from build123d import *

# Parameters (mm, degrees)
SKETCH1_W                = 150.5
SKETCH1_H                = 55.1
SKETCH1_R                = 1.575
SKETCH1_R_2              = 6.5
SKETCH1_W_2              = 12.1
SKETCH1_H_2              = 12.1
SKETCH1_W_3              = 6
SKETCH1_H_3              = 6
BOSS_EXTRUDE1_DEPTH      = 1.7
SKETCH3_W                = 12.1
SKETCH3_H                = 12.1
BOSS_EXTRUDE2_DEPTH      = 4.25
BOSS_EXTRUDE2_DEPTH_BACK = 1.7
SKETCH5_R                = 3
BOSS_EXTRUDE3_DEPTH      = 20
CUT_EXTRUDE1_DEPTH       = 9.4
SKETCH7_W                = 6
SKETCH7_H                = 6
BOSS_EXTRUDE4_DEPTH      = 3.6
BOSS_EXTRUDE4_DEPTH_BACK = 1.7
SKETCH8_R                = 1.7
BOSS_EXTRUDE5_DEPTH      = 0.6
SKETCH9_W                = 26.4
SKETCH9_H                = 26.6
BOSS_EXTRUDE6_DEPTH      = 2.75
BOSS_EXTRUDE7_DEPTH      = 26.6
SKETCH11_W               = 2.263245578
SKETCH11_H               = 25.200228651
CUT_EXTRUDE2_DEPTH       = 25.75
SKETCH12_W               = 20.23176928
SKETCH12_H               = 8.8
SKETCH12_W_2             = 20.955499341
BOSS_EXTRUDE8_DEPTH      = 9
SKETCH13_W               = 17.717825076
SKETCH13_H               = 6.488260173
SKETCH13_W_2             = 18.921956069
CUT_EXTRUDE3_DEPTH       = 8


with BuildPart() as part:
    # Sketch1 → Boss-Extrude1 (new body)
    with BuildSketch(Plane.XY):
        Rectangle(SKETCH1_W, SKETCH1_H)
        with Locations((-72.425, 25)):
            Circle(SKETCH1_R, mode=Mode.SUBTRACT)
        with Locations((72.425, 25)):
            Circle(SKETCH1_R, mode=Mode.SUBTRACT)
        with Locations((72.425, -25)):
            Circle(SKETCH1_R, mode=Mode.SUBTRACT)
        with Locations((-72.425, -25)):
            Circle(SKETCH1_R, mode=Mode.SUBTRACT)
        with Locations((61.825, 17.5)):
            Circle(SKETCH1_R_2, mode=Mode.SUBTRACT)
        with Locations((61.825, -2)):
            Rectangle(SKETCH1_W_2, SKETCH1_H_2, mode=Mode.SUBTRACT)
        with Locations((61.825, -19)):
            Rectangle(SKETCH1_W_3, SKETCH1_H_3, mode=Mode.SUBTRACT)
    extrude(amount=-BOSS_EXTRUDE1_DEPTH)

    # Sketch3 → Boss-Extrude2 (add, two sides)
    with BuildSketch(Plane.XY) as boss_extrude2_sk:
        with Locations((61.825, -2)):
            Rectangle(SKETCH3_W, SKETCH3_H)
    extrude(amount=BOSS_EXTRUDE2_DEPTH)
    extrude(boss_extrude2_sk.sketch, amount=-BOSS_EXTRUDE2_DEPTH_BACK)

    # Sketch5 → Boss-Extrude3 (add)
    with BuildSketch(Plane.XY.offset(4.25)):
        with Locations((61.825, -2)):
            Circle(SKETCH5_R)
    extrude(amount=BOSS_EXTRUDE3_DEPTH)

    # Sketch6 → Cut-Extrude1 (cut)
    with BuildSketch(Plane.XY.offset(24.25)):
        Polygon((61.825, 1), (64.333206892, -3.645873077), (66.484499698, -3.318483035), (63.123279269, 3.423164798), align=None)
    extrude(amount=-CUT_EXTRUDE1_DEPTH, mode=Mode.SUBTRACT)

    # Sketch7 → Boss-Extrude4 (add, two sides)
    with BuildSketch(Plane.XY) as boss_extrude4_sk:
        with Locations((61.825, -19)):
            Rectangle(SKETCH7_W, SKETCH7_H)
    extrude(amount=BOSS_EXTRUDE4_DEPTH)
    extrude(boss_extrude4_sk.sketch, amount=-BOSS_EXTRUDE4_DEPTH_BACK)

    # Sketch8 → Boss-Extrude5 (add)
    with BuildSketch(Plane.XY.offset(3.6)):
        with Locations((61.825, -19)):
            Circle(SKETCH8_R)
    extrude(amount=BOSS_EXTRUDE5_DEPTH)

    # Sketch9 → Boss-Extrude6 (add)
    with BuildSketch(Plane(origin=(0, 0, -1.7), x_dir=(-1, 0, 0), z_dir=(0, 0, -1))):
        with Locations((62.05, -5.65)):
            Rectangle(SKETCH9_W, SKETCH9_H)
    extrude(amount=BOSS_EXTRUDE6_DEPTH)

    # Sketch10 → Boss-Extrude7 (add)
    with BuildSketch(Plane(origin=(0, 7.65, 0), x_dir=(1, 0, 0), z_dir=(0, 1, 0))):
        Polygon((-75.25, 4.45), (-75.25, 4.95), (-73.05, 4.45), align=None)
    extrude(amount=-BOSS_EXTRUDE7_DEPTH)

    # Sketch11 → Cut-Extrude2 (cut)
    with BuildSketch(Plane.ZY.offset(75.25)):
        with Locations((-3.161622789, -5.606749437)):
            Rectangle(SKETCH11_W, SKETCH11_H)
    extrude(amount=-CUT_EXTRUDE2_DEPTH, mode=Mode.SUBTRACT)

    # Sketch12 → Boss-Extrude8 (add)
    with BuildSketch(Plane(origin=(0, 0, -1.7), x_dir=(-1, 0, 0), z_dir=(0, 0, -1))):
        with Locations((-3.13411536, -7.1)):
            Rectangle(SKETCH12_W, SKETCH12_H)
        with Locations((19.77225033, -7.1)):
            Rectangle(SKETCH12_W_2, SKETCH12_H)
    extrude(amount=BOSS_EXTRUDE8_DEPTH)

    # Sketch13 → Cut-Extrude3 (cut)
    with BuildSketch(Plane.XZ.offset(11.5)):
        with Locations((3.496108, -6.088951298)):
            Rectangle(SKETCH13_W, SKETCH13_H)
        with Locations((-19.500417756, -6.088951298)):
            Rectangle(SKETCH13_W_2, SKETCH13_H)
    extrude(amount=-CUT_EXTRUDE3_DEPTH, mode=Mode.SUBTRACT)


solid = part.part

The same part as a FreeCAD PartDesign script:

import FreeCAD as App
import Part
import Sketcher
from FreeCAD import Vector
Q = App.Units.Quantity


def add_polygon(sketch, points):
    """Adds a closed chain of lines whose ends are joined by coincident constraints."""
    first, n = sketch.GeometryCount, len(points)
    for a, b in zip(points, points[1:] + points[:1]):
        sketch.addGeometry(Part.LineSegment(App.Vector(*a, 0), App.Vector(*b, 0)), False)
    for i in range(n):
        sketch.addConstraint(Sketcher.Constraint("Coincident", first + i, 2, first + (i + 1) % n, 1))

doc = App.newDocument("Part")
body = doc.addObject("PartDesign::Body", "Body")

# Sketch on XY plane
sketch1 = body.newObject("Sketcher::SketchObject", "Sketch")
sketch1.AttachmentSupport = (doc.getObject("XY_Plane"), [""])
sketch1.MapMode = "FlatFace"
add_polygon(sketch1, [(-75.2, 27.6), (-75.2, -27.6), (75.2, -27.6), (75.2, 27.6)])  # lines 0-3
sketch1.addGeometry(Part.Circle(Vector(-72.4, -25, 0), Vector(0, 0, 1), 1.6), False)  # 4
sketch1.addGeometry(Part.Circle(Vector(72.4, -25, 0), Vector(0, 0, 1), 1.6), False)  # 5
add_polygon(sketch1, [(64.8, -22), (58.8, -22), (58.8, -16), (64.8, -16)])  # lines 6-9
add_polygon(sketch1, [(67.9, -8.1), (55.8, -8.1), (55.8, 4), (67.9, 4)])  # lines 10-13
sketch1.addGeometry(Part.Circle(Vector(-72.4, 25, 0), Vector(0, 0, 1), 1.6), False)  # 14
sketch1.addGeometry(Part.Circle(Vector(61.8, 17.5, 0), Vector(0, 0, 1), 6.5), False)  # 15
sketch1.addGeometry(Part.Circle(Vector(72.4, 25, 0), Vector(0, 0, 1), 1.6), False)  # 16
sketch1.addConstraint([
    Sketcher.Constraint("Vertical", 0),
    Sketcher.Constraint("Horizontal", 1),
    Sketcher.Constraint("Vertical", 2),
    Sketcher.Constraint("Horizontal", 3),
    Sketcher.Constraint("Horizontal", 6),
    Sketcher.Constraint("Vertical", 7),
    Sketcher.Constraint("Horizontal", 8),
    Sketcher.Constraint("Vertical", 9),
    Sketcher.Constraint("Horizontal", 10),
    Sketcher.Constraint("Vertical", 11),
    Sketcher.Constraint("Horizontal", 12),
    Sketcher.Constraint("Vertical", 13),
    Sketcher.Constraint("Equal", 4, 5),
    Sketcher.Constraint("Equal", 5, 14),
    Sketcher.Constraint("Equal", 14, 16),
    Sketcher.Constraint("Symmetric", 5, 3, 14, 3, -1, 1),
    Sketcher.Constraint("Symmetric", 4, 3, 16, 3, -1, 1),
    Sketcher.Constraint("Symmetric", 0, 2, 2, 2, -1, 1),
    Sketcher.Constraint("Symmetric", 4, 3, 5, 3, -2),
    Sketcher.Constraint("Equal", 8, 7),
    Sketcher.Constraint("Equal", 12, 11),
    Sketcher.Constraint("Diameter", 15, Q("13 mm")),
    Sketcher.Constraint("Diameter", 4, Q("3.15 mm")),
    Sketcher.Constraint("DistanceX", 6, 2, 6, 1, Q("6 mm")),
    Sketcher.Constraint("DistanceX", 1, 1, 1, 2, Q("150.5 mm")),
    Sketcher.Constraint("DistanceX", 10, 2, 10, 1, Q("12.1 mm")),
    Sketcher.Constraint("DistanceY", 0, 2, 0, 1, Q("55.1 mm")),
    Sketcher.Constraint("DistanceY", 4, 3, -1, 1, Q("25 mm")),
    Sketcher.Constraint("DistanceY", 6, 2, -1, 1, Q("22 mm")),
    Sketcher.Constraint("DistanceX", 6, 2, 15, 3, Q("3 mm")),
    Sketcher.Constraint("DistanceY", -1, 1, 15, 3, Q("17.5 mm")),
    Sketcher.Constraint("DistanceX", 15, 3, 5, 3, Q("10.6 mm")),
    Sketcher.Constraint("DistanceY", 10, 2, -1, 1, Q("8.05 mm")),
    Sketcher.Constraint("DistanceX", 4, 3, 5, 3, Q("144.85 mm")),
    Sketcher.Constraint("DistanceX", 10, 2, 7, 2, Q("3.05 mm")),
])
pad1 = body.newObject("PartDesign::Pad", "Pad")
pad1.Profile = sketch1
pad1.Length = 1.7
pad1.Reversed = True

# Sketch on XY plane
sketch2 = body.newObject("Sketcher::SketchObject", "Sketch001")
sketch2.AttachmentSupport = (doc.getObject("XY_Plane"), [""])
sketch2.MapMode = "FlatFace"
add_polygon(sketch2, [(56, 4), (56, -8), (68, -8), (68, 4)])  # lines 0-3
sketch2.addConstraint([
    Sketcher.Constraint("Vertical", 0),
    Sketcher.Constraint("Horizontal", 1),
    Sketcher.Constraint("Vertical", 2),
    Sketcher.Constraint("Horizontal", 3),
    Sketcher.Constraint("Equal", 3, 0),
    Sketcher.Constraint("DistanceX", 1, 1, 1, 2, Q("12.1 mm")),
    Sketcher.Constraint("DistanceY", 0, 2, -1, 1, Q("8.05 mm")),
    Sketcher.Constraint("DistanceX", -1, 1, 0, 2, Q("55.775 mm")),
])
pad2 = body.newObject("PartDesign::Pad", "Pad001")
pad2.Profile = sketch2
pad2.Type = "TwoLengths"
pad2.Length = 4.25
pad2.Length2 = 1.7

# Sketch on XY plane
sketch3 = body.newObject("Sketcher::SketchObject", "Sketch002")
sketch3.AttachmentSupport = (doc.getObject("XY_Plane"), [""])
sketch3.MapMode = "FlatFace"
sketch3.AttachmentOffset = App.Placement(Vector(0, 0, 4.25), App.Rotation())
sketch3.addGeometry(Part.Circle(Vector(61.8, -2, 0), Vector(0, 0, 1), 3), False)
sketch3.addConstraint([
    Sketcher.Constraint("Diameter", 0, Q("6 mm")),
    Sketcher.Constraint("DistanceY", 0, 3, -1, 1, Q("2 mm")),
    Sketcher.Constraint("DistanceX", -1, 1, 0, 3, Q("61.825 mm")),
])
pad3 = body.newObject("PartDesign::Pad", "Pad002")
pad3.Profile = sketch3
pad3.Length = 20

# Sketch on XY plane
sketch4 = body.newObject("Sketcher::SketchObject", "Sketch003")
sketch4.AttachmentSupport = (doc.getObject("XY_Plane"), [""])
sketch4.MapMode = "FlatFace"
sketch4.AttachmentOffset = App.Placement(Vector(0, 0, 24.25), App.Rotation())
add_polygon(sketch4, [(61.8, 1), (64.3, -3.6), (66.5, -3.3), (63.1, 3.4)])  # lines 0-3
sketch4.addConstraint([
    Sketcher.Constraint("DistanceY", -1, 1, 3, 2, Q("1 mm")),
    Sketcher.Constraint("DistanceX", -1, 1, 3, 2, Q("61.825 mm")),
    Sketcher.Constraint("Distance", 0, Q("5.279701 mm")),
    Sketcher.Constraint("Distance", 2, Q("7.533102 mm")),
    Sketcher.Constraint("DistanceX", -1, 1, 1, 2, Q("66.4845 mm")),
    Sketcher.Constraint("Distance", 1, Q("2.176062 mm")),
    Sketcher.Constraint("DistanceX", -1, 1, 2, 2, Q("63.123279 mm")),
    Sketcher.Constraint("DistanceY", 0, 2, 1, 2, Q("0.32739 mm")),
])
pocket1 = body.newObject("PartDesign::Pocket", "Pocket")
pocket1.Profile = sketch4
pocket1.Length = 9.4

# Sketch on XY plane
sketch5 = body.newObject("Sketcher::SketchObject", "Sketch004")
sketch5.AttachmentSupport = (doc.getObject("XY_Plane"), [""])
sketch5.MapMode = "FlatFace"
add_polygon(sketch5, [(59, -16), (59, -22), (65, -22), (65, -16)])  # lines 0-3
sketch5.addConstraint([
    Sketcher.Constraint("Vertical", 0),
    Sketcher.Constraint("Horizontal", 1),
    Sketcher.Constraint("Vertical", 2),
    Sketcher.Constraint("Horizontal", 3),
    Sketcher.Constraint("Equal", 3, 0),
    Sketcher.Constraint("DistanceX", 1, 1, 1, 2, Q("6 mm")),
    Sketcher.Constraint("DistanceY", 0, 2, -1, 1, Q("22 mm")),
    Sketcher.Constraint("DistanceX", -1, 1, 0, 2, Q("58.825 mm")),
])
pad4 = body.newObject("PartDesign::Pad", "Pad003")
pad4.Profile = sketch5
pad4.Type = "TwoLengths"
pad4.Length = 3.6
pad4.Length2 = 1.7

# Sketch on XY plane
sketch6 = body.newObject("Sketcher::SketchObject", "Sketch005")
sketch6.AttachmentSupport = (doc.getObject("XY_Plane"), [""])
sketch6.MapMode = "FlatFace"
sketch6.AttachmentOffset = App.Placement(Vector(0, 0, 3.6), App.Rotation())
sketch6.addGeometry(Part.Circle(Vector(61.8, -19, 0), Vector(0, 0, 1), 1.7), False)
sketch6.addConstraint([
    Sketcher.Constraint("Diameter", 0, Q("3.4 mm")),
    Sketcher.Constraint("DistanceY", 0, 3, -1, 1, Q("19 mm")),
    Sketcher.Constraint("DistanceX", -1, 1, 0, 3, Q("61.825 mm")),
])
pad5 = body.newObject("PartDesign::Pad", "Pad004")
pad5.Profile = sketch6
pad5.Length = 0.6

# Sketch on XY plane
sketch7 = body.newObject("Sketcher::SketchObject", "Sketch006")
sketch7.AttachmentSupport = (doc.getObject("XY_Plane"), [""])
sketch7.MapMode = "FlatFace"
sketch7.AttachmentOffset = App.Placement(Vector(0, 0, -1.7), App.Rotation())
add_polygon(sketch7, [(-49, 8), (-49, -19), (-75, -19), (-75, 8)])  # lines 0-3
sketch7.addConstraint([
    Sketcher.Constraint("Vertical", 0),
    Sketcher.Constraint("Horizontal", 1),
    Sketcher.Constraint("Vertical", 2),
    Sketcher.Constraint("Horizontal", 3),
    Sketcher.Constraint("DistanceX", 1, 2, 1, 1, Q("26.4 mm")),
    Sketcher.Constraint("DistanceY", 0, 2, 0, 1, Q("26.6 mm")),
    Sketcher.Constraint("DistanceX", 0, 2, -1, 1, Q("48.85 mm")),
    Sketcher.Constraint("DistanceY", 0, 2, -1, 1, Q("18.95 mm")),
])
pad6 = body.newObject("PartDesign::Pad", "Pad005")
pad6.Profile = sketch7
pad6.Length = 2.75
pad6.Reversed = True

# Sketch on XZ plane
sketch8 = body.newObject("Sketcher::SketchObject", "Sketch007")
sketch8.AttachmentSupport = (doc.getObject("XZ_Plane"), [""])
sketch8.MapMode = "FlatFace"
sketch8.AttachmentOffset = App.Placement(Vector(0, 0, -7.65), App.Rotation())
add_polygon(sketch8, [(-75.2, -5), (-75.2, -4.5), (-73, -4.5)])  # lines 0-2
sketch8.addConstraint([
    Sketcher.Constraint("Vertical", 0),
    Sketcher.Constraint("Horizontal", 1),
    Sketcher.Constraint("DistanceX", 1, 1, 1, 2, Q("2.2 mm")),
    Sketcher.Constraint("DistanceY", 0, 1, 0, 2, Q("0.5 mm")),
    Sketcher.Constraint("DistanceX", 0, 2, -1, 1, Q("75.25 mm")),
    Sketcher.Constraint("DistanceY", 0, 2, -1, 1, Q("4.45 mm")),
])
pad7 = body.newObject("PartDesign::Pad", "Pad006")
pad7.Profile = sketch8
pad7.Length = 26.6

# Sketch on YZ plane
sketch9 = body.newObject("Sketcher::SketchObject", "Sketch008")
sketch9.AttachmentSupport = (doc.getObject("YZ_Plane"), [""])
sketch9.MapMode = "FlatFace"
sketch9.AttachmentOffset = App.Placement(Vector(0, 0, -75.25), App.Rotation())
add_polygon(sketch9, [(7, -4.3), (-18.2, -4.3), (-18.2, -2), (7, -2)])  # lines 0-3
sketch9.addConstraint([
    Sketcher.Constraint("Horizontal", 0),
    Sketcher.Constraint("Vertical", 1),
    Sketcher.Constraint("Horizontal", 2),
    Sketcher.Constraint("Vertical", 3),
    Sketcher.Constraint("DistanceY", 1, 2, -1, 1, Q("2.03 mm")),
    Sketcher.Constraint("DistanceX", 0, 2, 0, 1, Q("25.200229 mm")),
    Sketcher.Constraint("DistanceY", 1, 1, 1, 2, Q("2.263246 mm")),
    Sketcher.Constraint("DistanceX", 0, 2, -1, 1, Q("18.206864 mm")),
])
pocket2 = body.newObject("PartDesign::Pocket", "Pocket001")
pocket2.Profile = sketch9
pocket2.Length = 25.75
pocket2.Reversed = True

# Sketch on XY plane
sketch10 = body.newObject("Sketcher::SketchObject", "Sketch009")
sketch10.AttachmentSupport = (doc.getObject("XY_Plane"), [""])
sketch10.MapMode = "FlatFace"
sketch10.AttachmentOffset = App.Placement(Vector(0, 0, -1.7), App.Rotation())
add_polygon(sketch10, [(13, -3), (13, -12), (-7, -12), (-7, -3)])  # lines 0-3
add_polygon(sketch10, [(-9, -3), (-9, -12), (-30, -12), (-30, -3)])  # lines 4-7
sketch10.addConstraint([
    Sketcher.Constraint("Vertical", 0),
    Sketcher.Constraint("Horizontal", 1),
    Sketcher.Constraint("Vertical", 2),
    Sketcher.Constraint("Horizontal", 3),
    Sketcher.Constraint("Vertical", 4),
    Sketcher.Constraint("Horizontal", 5),
    Sketcher.Constraint("Vertical", 6),
    Sketcher.Constraint("Horizontal", 7),
    Sketcher.Constraint("Horizontal", 1, 2, 4, 2),
    Sketcher.Constraint("Horizontal", 3, 2, 6, 2),
    Sketcher.Constraint("DistanceY", 0, 2, 0, 1, Q("8.8 mm")),
    Sketcher.Constraint("DistanceY", 0, 2, -1, 1, Q("11.5 mm")),
    Sketcher.Constraint("DistanceX", 5, 2, 0, 2, Q("43.5 mm")),
    Sketcher.Constraint("DistanceX", -1, 1, 0, 2, Q("13.25 mm")),
    Sketcher.Constraint("DistanceX", 5, 2, 5, 1, Q("20.955499 mm")),
    Sketcher.Constraint("DistanceX", 1, 2, 1, 1, Q("20.231769 mm")),
])
pad8 = body.newObject("PartDesign::Pad", "Pad007")
pad8.Profile = sketch10
pad8.Length = 9
pad8.Reversed = True

# Sketch on XZ plane
sketch11 = body.newObject("Sketcher::SketchObject", "Sketch010")
sketch11.AttachmentSupport = (doc.getObject("XZ_Plane"), [""])
sketch11.MapMode = "FlatFace"
sketch11.AttachmentOffset = App.Placement(Vector(0, 0, 11.5), App.Rotation())
add_polygon(sketch11, [(-5, -3), (-5, -9), (12, -9), (12, -3)])  # lines 0-3
add_polygon(sketch11, [(-29, -3), (-29, -9), (-10, -9), (-10, -3)])  # lines 4-7
sketch11.addConstraint([
    Sketcher.Constraint("Vertical", 0),
    Sketcher.Constraint("Horizontal", 1),
    Sketcher.Constraint("Vertical", 2),
    Sketcher.Constraint("Horizontal", 3),
    Sketcher.Constraint("Vertical", 4),
    Sketcher.Constraint("Horizontal", 5),
    Sketcher.Constraint("Vertical", 6),
    Sketcher.Constraint("Horizontal", 7),
    Sketcher.Constraint("Horizontal", 1, 2, 4, 2),
    Sketcher.Constraint("Horizontal", 3, 2, 6, 2),
    Sketcher.Constraint("DistanceY", 0, 2, 0, 1, Q("6.48826 mm")),
    Sketcher.Constraint("DistanceX", 1, 1, 1, 2, Q("17.717825 mm")),
    Sketcher.Constraint("DistanceX", 5, 1, 5, 2, Q("18.921956 mm")),
    Sketcher.Constraint("DistanceY", 0, 2, -1, 1, Q("9.333081 mm")),
    Sketcher.Constraint("DistanceX", -1, 1, 1, 2, Q("12.355021 mm")),
    Sketcher.Constraint("DistanceX", 5, 2, -1, 1, Q("10.03944 mm")),
])
pocket3 = body.newObject("PartDesign::Pocket", "Pocket002")
pocket3.Profile = sketch11
pocket3.Length = 8

doc.recompute()
